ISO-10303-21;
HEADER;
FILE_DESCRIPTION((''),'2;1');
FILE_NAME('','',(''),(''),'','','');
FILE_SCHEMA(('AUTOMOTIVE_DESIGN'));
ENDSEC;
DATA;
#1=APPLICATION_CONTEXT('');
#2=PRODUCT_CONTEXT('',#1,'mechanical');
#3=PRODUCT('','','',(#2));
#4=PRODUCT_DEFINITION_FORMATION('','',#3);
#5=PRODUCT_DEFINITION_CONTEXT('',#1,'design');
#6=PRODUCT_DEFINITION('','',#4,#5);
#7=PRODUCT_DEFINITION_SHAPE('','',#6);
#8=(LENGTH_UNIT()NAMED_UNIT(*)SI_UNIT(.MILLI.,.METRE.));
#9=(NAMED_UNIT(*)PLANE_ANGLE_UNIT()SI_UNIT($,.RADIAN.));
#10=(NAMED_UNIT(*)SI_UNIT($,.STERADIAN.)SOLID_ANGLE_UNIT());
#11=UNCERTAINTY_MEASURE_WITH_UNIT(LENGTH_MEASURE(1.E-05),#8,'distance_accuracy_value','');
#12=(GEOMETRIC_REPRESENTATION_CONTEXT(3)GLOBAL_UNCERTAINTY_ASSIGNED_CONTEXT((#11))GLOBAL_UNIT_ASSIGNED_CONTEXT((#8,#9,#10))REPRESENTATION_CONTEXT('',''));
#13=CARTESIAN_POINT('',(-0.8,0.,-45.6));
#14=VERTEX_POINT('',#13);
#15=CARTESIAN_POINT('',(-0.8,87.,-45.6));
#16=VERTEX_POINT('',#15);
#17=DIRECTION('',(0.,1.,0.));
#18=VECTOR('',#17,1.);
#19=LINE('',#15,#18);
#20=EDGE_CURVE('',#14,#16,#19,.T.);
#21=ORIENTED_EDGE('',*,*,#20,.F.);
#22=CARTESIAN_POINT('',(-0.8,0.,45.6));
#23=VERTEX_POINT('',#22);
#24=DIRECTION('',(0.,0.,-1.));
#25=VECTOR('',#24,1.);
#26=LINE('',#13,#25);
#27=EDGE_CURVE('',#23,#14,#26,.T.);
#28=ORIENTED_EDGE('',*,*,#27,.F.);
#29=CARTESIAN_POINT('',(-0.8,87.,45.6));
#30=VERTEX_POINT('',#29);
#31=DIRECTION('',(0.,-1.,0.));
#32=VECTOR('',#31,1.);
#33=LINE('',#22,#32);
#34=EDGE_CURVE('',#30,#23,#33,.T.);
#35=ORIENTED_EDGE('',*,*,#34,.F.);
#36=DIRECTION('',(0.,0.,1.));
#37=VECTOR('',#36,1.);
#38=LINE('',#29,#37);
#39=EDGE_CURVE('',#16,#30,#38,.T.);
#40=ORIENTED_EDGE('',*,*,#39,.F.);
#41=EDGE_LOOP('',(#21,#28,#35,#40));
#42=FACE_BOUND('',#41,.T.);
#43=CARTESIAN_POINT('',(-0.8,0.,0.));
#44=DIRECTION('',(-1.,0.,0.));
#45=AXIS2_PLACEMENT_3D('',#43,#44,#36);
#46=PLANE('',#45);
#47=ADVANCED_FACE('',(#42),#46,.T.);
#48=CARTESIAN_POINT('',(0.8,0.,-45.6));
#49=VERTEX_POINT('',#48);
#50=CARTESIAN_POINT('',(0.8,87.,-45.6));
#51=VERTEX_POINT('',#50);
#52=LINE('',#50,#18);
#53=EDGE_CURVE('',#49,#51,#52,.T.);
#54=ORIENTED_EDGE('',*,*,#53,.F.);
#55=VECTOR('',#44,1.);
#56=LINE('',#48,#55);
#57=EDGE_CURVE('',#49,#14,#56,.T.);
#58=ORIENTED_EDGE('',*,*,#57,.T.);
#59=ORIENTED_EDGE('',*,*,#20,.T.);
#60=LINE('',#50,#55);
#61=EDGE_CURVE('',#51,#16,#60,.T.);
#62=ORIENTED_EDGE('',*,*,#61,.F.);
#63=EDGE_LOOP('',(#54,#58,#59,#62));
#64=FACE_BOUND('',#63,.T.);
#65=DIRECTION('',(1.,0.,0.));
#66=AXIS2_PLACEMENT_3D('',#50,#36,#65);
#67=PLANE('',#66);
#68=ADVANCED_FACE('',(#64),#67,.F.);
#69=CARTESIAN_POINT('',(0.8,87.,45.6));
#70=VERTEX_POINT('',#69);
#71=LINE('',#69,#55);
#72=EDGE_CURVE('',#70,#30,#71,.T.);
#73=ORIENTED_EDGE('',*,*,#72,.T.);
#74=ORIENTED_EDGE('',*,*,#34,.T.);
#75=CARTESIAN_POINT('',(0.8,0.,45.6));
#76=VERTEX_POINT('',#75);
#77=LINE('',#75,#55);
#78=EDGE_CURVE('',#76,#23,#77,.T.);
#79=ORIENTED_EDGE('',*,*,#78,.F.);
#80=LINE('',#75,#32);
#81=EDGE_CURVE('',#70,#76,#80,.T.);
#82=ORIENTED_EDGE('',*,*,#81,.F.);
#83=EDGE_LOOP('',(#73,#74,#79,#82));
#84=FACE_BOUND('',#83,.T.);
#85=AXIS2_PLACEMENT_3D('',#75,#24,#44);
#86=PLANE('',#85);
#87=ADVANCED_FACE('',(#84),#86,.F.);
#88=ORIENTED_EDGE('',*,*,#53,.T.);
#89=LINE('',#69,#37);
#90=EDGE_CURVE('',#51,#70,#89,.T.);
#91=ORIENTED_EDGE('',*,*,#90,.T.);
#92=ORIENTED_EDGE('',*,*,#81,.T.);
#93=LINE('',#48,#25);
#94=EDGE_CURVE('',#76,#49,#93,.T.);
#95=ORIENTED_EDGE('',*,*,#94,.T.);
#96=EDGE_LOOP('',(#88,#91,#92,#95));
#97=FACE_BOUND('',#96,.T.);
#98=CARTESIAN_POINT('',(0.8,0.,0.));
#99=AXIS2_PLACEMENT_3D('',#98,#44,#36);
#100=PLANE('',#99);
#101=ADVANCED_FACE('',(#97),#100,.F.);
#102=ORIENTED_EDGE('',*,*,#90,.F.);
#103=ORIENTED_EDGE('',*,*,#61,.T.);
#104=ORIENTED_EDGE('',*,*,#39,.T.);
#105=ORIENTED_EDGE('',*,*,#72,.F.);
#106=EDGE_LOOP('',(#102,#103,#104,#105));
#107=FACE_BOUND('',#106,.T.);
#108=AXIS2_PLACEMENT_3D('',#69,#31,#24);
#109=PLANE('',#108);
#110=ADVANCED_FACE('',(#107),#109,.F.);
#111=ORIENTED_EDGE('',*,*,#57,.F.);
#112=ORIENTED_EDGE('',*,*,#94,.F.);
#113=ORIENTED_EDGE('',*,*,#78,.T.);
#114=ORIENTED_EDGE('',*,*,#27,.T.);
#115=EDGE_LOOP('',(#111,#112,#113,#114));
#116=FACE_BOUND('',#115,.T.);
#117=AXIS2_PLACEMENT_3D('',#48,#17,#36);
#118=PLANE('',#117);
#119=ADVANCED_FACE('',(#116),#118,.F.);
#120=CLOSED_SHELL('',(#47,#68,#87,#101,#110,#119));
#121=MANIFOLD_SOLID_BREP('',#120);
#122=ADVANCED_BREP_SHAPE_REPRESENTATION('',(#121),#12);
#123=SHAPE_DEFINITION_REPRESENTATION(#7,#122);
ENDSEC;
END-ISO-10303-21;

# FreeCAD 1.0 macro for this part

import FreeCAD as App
import Part
import Sketcher
from FreeCAD import Vector

doc = App.newDocument("Part")
body = doc.addObject("PartDesign::Body", "Body")

# Sketch on YZ plane
sketch1 = body.newObject("Sketcher::SketchObject", "Sketch")
sketch1.AttachmentSupport = (doc.getObject("YZ_Plane"), [""])
sketch1.MapMode = "FlatFace"
sketch1.addGeometry(Part.LineSegment(Vector(87, 45.6, 0), Vector(0, 45.6, 0)), False)
sketch1.addGeometry(Part.LineSegment(Vector(0, 45.6, 0), Vector(0, -45.6, 0)), False)
sketch1.addGeometry(Part.LineSegment(Vector(0, -45.6, 0), Vector(87, -45.6, 0)), False)
sketch1.addGeometry(Part.LineSegment(Vector(87, -45.6, 0), Vector(87, 45.6, 0)), False)
sketch1.addConstraint(Sketcher.Constraint("Coincident", 0, 2, 1, 1))
sketch1.addConstraint(Sketcher.Constraint("Coincident", 1, 2, 2, 1))
sketch1.addConstraint(Sketcher.Constraint("Coincident", 2, 2, 3, 1))
sketch1.addConstraint(Sketcher.Constraint("Coincident", 3, 2, 0, 1))
sketch1.addConstraint(Sketcher.Constraint("Horizontal", 0))
sketch1.addConstraint(Sketcher.Constraint("Vertical", 1))
sketch1.addConstraint(Sketcher.Constraint("Horizontal", 2))
sketch1.addConstraint(Sketcher.Constraint("Vertical", 3))
sketch1.addConstraint(Sketcher.Constraint("Symmetric", 0, 2, 1, 2, -1, 1))
sketch1.addConstraint(Sketcher.Constraint("DistanceX", 0, 2, 0, 1, 87.0))
sketch1.addConstraint(Sketcher.Constraint("DistanceY", 1, 2, 1, 1, 91.2))
pad1 = body.newObject("PartDesign::Pad", "Pad")
pad1.Profile = sketch1
pad1.Length = 1.6
pad1.Midplane = True

doc.recompute()
